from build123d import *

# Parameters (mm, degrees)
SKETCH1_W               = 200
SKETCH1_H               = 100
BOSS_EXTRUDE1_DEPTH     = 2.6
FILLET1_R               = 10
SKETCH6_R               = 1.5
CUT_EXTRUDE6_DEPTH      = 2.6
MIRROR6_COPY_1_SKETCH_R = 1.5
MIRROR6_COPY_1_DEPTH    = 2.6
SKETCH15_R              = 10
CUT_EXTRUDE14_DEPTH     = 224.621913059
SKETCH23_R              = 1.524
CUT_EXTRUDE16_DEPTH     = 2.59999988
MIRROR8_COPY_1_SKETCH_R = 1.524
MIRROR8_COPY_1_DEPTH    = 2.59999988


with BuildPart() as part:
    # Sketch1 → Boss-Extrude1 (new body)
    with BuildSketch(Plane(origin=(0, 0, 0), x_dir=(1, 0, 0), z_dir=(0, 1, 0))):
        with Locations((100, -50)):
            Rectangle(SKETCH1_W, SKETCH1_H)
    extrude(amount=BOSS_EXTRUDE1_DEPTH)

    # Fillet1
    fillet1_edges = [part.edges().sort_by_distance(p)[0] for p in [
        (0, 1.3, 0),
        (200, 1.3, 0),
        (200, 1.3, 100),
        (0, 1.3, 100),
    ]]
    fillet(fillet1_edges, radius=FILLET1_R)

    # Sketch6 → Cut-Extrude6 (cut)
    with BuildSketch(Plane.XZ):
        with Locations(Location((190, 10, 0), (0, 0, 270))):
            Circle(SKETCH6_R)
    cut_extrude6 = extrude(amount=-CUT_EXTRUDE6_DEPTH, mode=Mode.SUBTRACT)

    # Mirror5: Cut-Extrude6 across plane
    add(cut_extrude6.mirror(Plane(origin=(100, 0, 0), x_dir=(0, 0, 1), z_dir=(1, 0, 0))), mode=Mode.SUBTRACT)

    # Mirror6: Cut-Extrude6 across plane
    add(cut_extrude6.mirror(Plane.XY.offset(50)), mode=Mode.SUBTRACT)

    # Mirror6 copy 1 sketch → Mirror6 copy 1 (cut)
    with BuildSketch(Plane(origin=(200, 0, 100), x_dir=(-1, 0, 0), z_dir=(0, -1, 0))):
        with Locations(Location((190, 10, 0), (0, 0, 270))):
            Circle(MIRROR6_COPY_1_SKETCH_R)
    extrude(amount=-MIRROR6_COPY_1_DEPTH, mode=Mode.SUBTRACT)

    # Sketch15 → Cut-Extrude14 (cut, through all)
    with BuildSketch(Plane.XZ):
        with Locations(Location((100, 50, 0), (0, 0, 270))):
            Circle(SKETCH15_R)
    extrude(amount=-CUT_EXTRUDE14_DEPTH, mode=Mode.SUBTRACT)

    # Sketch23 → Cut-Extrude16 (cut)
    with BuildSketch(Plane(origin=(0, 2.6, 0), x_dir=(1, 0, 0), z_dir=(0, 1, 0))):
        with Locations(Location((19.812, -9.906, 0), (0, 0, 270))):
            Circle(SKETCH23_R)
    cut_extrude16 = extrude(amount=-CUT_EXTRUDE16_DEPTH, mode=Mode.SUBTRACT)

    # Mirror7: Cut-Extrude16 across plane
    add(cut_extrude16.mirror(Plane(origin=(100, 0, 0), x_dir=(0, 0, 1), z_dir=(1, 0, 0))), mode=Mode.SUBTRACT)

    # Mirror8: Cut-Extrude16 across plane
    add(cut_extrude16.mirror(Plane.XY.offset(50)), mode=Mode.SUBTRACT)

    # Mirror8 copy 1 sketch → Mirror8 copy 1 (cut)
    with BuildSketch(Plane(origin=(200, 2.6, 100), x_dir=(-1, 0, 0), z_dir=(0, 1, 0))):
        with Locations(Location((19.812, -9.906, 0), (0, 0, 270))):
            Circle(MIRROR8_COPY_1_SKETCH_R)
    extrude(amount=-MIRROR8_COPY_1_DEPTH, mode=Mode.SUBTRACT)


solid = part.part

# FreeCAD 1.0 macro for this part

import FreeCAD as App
import Part
import Sketcher
Q = App.Units.Quantity


def edges_at(feature, points):
    """Names of the edges that pass closest to the given points."""
    edges = feature.Shape.Edges
    near = lambda p: min(range(len(edges)), key=lambda i: edges[i].distToShape(Part.Vertex(*p))[0])
    return sorted({f"Edge{near(p) + 1}" for p in points})


def add_polygon(sketch, points):
    """Adds a closed chain of lines whose ends are joined by coincident constraints."""
    first, n = sketch.GeometryCount, len(points)
    for a, b in zip(points, points[1:] + points[:1]):
        sketch.addGeometry(Part.LineSegment(App.Vector(*a, 0), App.Vector(*b, 0)), False)
    for i in range(n):
        sketch.addConstraint(Sketcher.Constraint("Coincident", first + i, 2, first + (i + 1) % n, 1))

doc = App.newDocument("Part")
body = doc.addObject("PartDesign::Body", "Body")

sketch1 = body.newObject("Sketcher::SketchObject", "Sketch")
sketch1.AttachmentSupport = (doc.getObject("XZ_Plane"), [""])
sketch1.MapMode = "FlatFace"
add_polygon(sketch1, [(0, 0), (0, 100), (200, 100), (200, 0)])
sketch1.addConstraint([
    Sketcher.Constraint("Vertical", 0),
    Sketcher.Constraint("Horizontal", 1),
    Sketcher.Constraint("Vertical", 2),
    Sketcher.Constraint("Horizontal", 3),
    Sketcher.Constraint("Coincident", 3, 2, -1, 1),
    Sketcher.Constraint("DistanceX", 1, 1, 1, 2, Q("200 mm")),
    Sketcher.Constraint("DistanceY", 0, 1, 0, 2, Q("100 mm")),
])
pad1 = body.newObject("PartDesign::Pad", "Pad")
pad1.Profile = sketch1
pad1.Length = 2.6
pad1.Reversed = True
doc.recompute()

fillet = body.newObject("PartDesign::Fillet", "Fillet")
fillet.Base = (pad1, edges_at(pad1, [
    (0, 1.3, 0),
    (200, 1.3, 0),
    (200, 1.3, 100),
    (0, 1.3, 100),
]))
fillet.Radius = 10

sketch2 = body.newObject("Sketcher::SketchObject", "Sketch001")
sketch2.AttachmentSupport = (doc.getObject("XZ_Plane"), [""])
sketch2.MapMode = "FlatFace"
sketch2.addGeometry(Part.Circle(App.Vector(190, 10, 0), App.Vector(0, 0, 1), 1.5), False)
sketch2.addConstraint([
    Sketcher.Constraint("Diameter", 0, Q("3 mm")),
    Sketcher.Constraint("DistanceX", -1, 1, 0, 3, Q("190 mm")),
    Sketcher.Constraint("DistanceY", -1, 1, 0, 3, Q("10 mm")),
])
pocket1 = body.newObject("PartDesign::Pocket", "Pocket")
pocket1.Profile = sketch2
pocket1.Length = 2.6
doc.recompute()

datumplane = body.newObject("PartDesign::Plane", "DatumPlane")
datumplane.AttachmentSupport = (doc.getObject("YZ_Plane"), [""])
datumplane.MapMode = "FlatFace"
datumplane.AttachmentOffset = App.Placement(App.Vector(0, 0, 100), App.Rotation())
mirrored = body.newObject("PartDesign::Mirrored", "Mirrored")
mirrored.Originals = [pocket1]
mirrored.MirrorPlane = (datumplane, [""])
body.Tip = mirrored
doc.recompute()

datumplane2 = body.newObject("PartDesign::Plane", "DatumPlane001")
datumplane2.AttachmentSupport = (doc.getObject("XY_Plane"), [""])
datumplane2.MapMode = "FlatFace"
datumplane2.AttachmentOffset = App.Placement(App.Vector(0, 0, 50), App.Rotation())
mirrored2 = body.newObject("PartDesign::Mirrored", "Mirrored001")
mirrored2.Originals = [pocket1]
mirrored2.MirrorPlane = (datumplane2, [""])
body.Tip = mirrored2

sketch3 = body.newObject("Sketcher::SketchObject", "Sketch002")
sketch3.AttachmentSupport = (doc.getObject("XZ_Plane"), [""])
sketch3.MapMode = "FlatFace"
sketch3.addGeometry(Part.Circle(App.Vector(10, 90, 0), App.Vector(0, 0, 1), 1.5), False)
sketch3.addConstraint([
    Sketcher.Constraint("Diameter", 0, Q("3 mm")),
    Sketcher.Constraint("DistanceX", -1, 1, 0, 3, Q("10 mm")),
    Sketcher.Constraint("DistanceY", -1, 1, 0, 3, Q("90 mm")),
])
pocket2 = body.newObject("PartDesign::Pocket", "Pocket001")
pocket2.Profile = sketch3
pocket2.Length = 2.6

sketch4 = body.newObject("Sketcher::SketchObject", "Sketch003")
sketch4.AttachmentSupport = (doc.getObject("XZ_Plane"), [""])
sketch4.MapMode = "FlatFace"
sketch4.addGeometry(Part.Circle(App.Vector(100, 50, 0), App.Vector(0, 0, 1), 10), False)
sketch4.addConstraint([
    Sketcher.Constraint("Diameter", 0, Q("20 mm")),
    Sketcher.Constraint("DistanceX", -1, 1, 0, 3, Q("100 mm")),
    Sketcher.Constraint("DistanceY", -1, 1, 0, 3, Q("50 mm")),
])
pocket3 = body.newObject("PartDesign::Pocket", "Pocket002")
pocket3.Profile = sketch4
pocket3.Type = "ThroughAll"

sketch5 = body.newObject("Sketcher::SketchObject", "Sketch004")
sketch5.AttachmentSupport = (doc.getObject("XZ_Plane"), [""])
sketch5.MapMode = "FlatFace"
sketch5.AttachmentOffset = App.Placement(App.Vector(0, 0, -2.6), App.Rotation())
sketch5.addGeometry(Part.Circle(App.Vector(19.8, 9.9, 0), App.Vector(0, 0, 1), 1.5), False)
sketch5.addConstraint([
    Sketcher.Constraint("Diameter", 0, Q("3.048 mm")),
    Sketcher.Constraint("DistanceX", -1, 1, 0, 3, Q("19.812 mm")),
    Sketcher.Constraint("DistanceY", -1, 1, 0, 3, Q("9.906 mm")),
])
pocket4 = body.newObject("PartDesign::Pocket", "Pocket003")
pocket4.Profile = sketch5
pocket4.Length = 2.6
pocket4.Reversed = True
doc.recompute()

datumplane3 = body.newObject("PartDesign::Plane", "DatumPlane002")
datumplane3.AttachmentSupport = (doc.getObject("YZ_Plane"), [""])
datumplane3.MapMode = "FlatFace"
datumplane3.AttachmentOffset = App.Placement(App.Vector(0, 0, 100), App.Rotation())
mirrored3 = body.newObject("PartDesign::Mirrored", "Mirrored002")
mirrored3.Originals = [pocket4]
mirrored3.MirrorPlane = (datumplane3, [""])
body.Tip = mirrored3
doc.recompute()

datumplane4 = body.newObject("PartDesign::Plane", "DatumPlane003")
datumplane4.AttachmentSupport = (doc.getObject("XY_Plane"), [""])
datumplane4.MapMode = "FlatFace"
datumplane4.AttachmentOffset = App.Placement(App.Vector(0, 0, 50), App.Rotation())
mirrored4 = body.newObject("PartDesign::Mirrored", "Mirrored003")
mirrored4.Originals = [pocket4]
mirrored4.MirrorPlane = (datumplane4, [""])
body.Tip = mirrored4

sketch6 = body.newObject("Sketcher::SketchObject", "Sketch005")
sketch6.AttachmentSupport = (doc.getObject("XZ_Plane"), [""])
sketch6.MapMode = "FlatFace"
sketch6.AttachmentOffset = App.Placement(App.Vector(0, 0, -2.6), App.Rotation())
sketch6.addGeometry(Part.Circle(App.Vector(180.2, 90.1, 0), App.Vector(0, 0, 1), 1.5), False)
sketch6.addConstraint([
    Sketcher.Constraint("Diameter", 0, Q("3.048 mm")),
    Sketcher.Constraint("DistanceX", -1, 1, 0, 3, Q("180.188 mm")),
    Sketcher.Constraint("DistanceY", -1, 1, 0, 3, Q("90.094 mm")),
])
pocket5 = body.newObject("PartDesign::Pocket", "Pocket004")
pocket5.Profile = sketch6
pocket5.Length = 2.6
pocket5.Reversed = True

doc.recompute()
